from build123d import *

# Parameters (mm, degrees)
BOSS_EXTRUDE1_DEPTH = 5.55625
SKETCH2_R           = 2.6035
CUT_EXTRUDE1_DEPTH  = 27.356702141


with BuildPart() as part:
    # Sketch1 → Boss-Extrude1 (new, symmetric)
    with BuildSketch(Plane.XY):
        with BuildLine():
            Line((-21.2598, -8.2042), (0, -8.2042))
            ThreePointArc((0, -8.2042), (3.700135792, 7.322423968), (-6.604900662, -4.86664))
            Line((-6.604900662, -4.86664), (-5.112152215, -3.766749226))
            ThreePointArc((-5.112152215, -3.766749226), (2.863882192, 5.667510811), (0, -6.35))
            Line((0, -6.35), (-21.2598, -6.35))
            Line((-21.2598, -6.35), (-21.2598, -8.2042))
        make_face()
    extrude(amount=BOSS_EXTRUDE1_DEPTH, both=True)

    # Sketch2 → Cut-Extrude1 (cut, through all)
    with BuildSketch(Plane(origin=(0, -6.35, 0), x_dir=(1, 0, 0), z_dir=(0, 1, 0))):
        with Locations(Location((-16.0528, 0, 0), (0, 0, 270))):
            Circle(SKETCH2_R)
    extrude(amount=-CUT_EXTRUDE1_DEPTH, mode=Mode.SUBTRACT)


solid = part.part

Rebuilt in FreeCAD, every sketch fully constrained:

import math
import FreeCAD as App
import Part
import Sketcher
Q = App.Units.Quantity

doc = App.newDocument("Part")
body = doc.addObject("PartDesign::Body", "Body")

sketch1 = doc.addObject("Sketcher::SketchObject", "Sketch")
body.addObject(sketch1)
sketch1.AttachmentSupport = (doc.XY_Plane, [""])
sketch1.MapMode = "FlatFace"
sketch1.addGeometry(Part.LineSegment(App.Vector(-21.3, -8.2, 0), App.Vector(0, -8.2, 0)), False)
sketch1.addGeometry(Part.ArcOfCircle(Part.Circle(App.Vector(0, 0, 0), App.Vector(0, 0, 1), 8.2), math.radians(-90), math.radians(216)), False)
sketch1.addGeometry(Part.LineSegment(App.Vector(-6.6, -4.9, 0), App.Vector(-5.1, -3.8, 0)), False)
sketch1.addGeometry(Part.ArcOfCircle(Part.Circle(App.Vector(0, 0, 0), App.Vector(0, 0, 1), 6.3), math.radians(-90), math.radians(216)), False)
sketch1.addGeometry(Part.LineSegment(App.Vector(0, -6.3, 0), App.Vector(-21.3, -6.3, 0)), False)
sketch1.addGeometry(Part.LineSegment(App.Vector(-21.3, -6.3, 0), App.Vector(-21.3, -8.2, 0)), False)
sketch1.addConstraint(Sketcher.Constraint("Tangent", 0, 2, 1, 1))
sketch1.addConstraint(Sketcher.Constraint("Coincident", 1, 2, 2, 1))
sketch1.addConstraint(Sketcher.Constraint("Coincident", 2, 2, 3, 2))
sketch1.addConstraint(Sketcher.Constraint("Tangent", 3, 1, 4, 1))
sketch1.addConstraint(Sketcher.Constraint("Coincident", 4, 2, 5, 1))
sketch1.addConstraint(Sketcher.Constraint("Coincident", 5, 2, 0, 1))
sketch1.addConstraint(Sketcher.Constraint("Horizontal", 0))
sketch1.addConstraint(Sketcher.Constraint("Horizontal", 4))
sketch1.addConstraint(Sketcher.Constraint("Vertical", 5))
sketch1.addConstraint(Sketcher.Constraint("Coincident", 1, 3, -1, 1))
sketch1.addConstraint(Sketcher.Constraint("Coincident", 3, 3, -1, 1))
sketch1.addConstraint(Sketcher.Constraint("Radius", 3, Q("0.25 in")))
sketch1.addConstraint(Sketcher.Constraint("Radius", 1, Q("0.323 in")))
sketch1.addConstraint(Sketcher.Constraint("DistanceX", 0, 1, 0, 2, Q("0.837 in")))
sketch1.addConstraint(Sketcher.Constraint("DistanceY", 1, 2, -1, 1, Q("0.1916 in")))
sketch1.addConstraint(Sketcher.Constraint("DistanceY", 2, 2, -1, 1, 3.766749))
pad1 = doc.addObject("PartDesign::Pad", "Pad")
body.addObject(pad1)
pad1.Profile = sketch1
pad1.Length = Q("0.4375 in")
pad1.Midplane = True

sketch2 = doc.addObject("Sketcher::SketchObject", "Sketch001")
body.addObject(sketch2)
sketch2.AttachmentSupport = (doc.XZ_Plane, [""])
sketch2.MapMode = "FlatFace"
sketch2.AttachmentOffset = App.Placement(App.Vector(0, 0, 0.25 * 25.4), App.Rotation())
sketch2.addGeometry(Part.Circle(App.Vector(-16.1, 0, 0), App.Vector(0, 0, 1), 2.6), False)
sketch2.addConstraint(Sketcher.Constraint("PointOnObject", 0, 3, -1))
sketch2.addConstraint(Sketcher.Constraint("Diameter", 0, Q("0.205 in")))
sketch2.addConstraint(Sketcher.Constraint("DistanceX", 0, 3, -1, 1, Q("0.632 in")))
pocket1 = doc.addObject("PartDesign::Pocket", "Pocket")
body.addObject(pocket1)
pocket1.Profile = sketch2
pocket1.Type = "ThroughAll"
pocket1.Reversed = True

doc.recompute()
